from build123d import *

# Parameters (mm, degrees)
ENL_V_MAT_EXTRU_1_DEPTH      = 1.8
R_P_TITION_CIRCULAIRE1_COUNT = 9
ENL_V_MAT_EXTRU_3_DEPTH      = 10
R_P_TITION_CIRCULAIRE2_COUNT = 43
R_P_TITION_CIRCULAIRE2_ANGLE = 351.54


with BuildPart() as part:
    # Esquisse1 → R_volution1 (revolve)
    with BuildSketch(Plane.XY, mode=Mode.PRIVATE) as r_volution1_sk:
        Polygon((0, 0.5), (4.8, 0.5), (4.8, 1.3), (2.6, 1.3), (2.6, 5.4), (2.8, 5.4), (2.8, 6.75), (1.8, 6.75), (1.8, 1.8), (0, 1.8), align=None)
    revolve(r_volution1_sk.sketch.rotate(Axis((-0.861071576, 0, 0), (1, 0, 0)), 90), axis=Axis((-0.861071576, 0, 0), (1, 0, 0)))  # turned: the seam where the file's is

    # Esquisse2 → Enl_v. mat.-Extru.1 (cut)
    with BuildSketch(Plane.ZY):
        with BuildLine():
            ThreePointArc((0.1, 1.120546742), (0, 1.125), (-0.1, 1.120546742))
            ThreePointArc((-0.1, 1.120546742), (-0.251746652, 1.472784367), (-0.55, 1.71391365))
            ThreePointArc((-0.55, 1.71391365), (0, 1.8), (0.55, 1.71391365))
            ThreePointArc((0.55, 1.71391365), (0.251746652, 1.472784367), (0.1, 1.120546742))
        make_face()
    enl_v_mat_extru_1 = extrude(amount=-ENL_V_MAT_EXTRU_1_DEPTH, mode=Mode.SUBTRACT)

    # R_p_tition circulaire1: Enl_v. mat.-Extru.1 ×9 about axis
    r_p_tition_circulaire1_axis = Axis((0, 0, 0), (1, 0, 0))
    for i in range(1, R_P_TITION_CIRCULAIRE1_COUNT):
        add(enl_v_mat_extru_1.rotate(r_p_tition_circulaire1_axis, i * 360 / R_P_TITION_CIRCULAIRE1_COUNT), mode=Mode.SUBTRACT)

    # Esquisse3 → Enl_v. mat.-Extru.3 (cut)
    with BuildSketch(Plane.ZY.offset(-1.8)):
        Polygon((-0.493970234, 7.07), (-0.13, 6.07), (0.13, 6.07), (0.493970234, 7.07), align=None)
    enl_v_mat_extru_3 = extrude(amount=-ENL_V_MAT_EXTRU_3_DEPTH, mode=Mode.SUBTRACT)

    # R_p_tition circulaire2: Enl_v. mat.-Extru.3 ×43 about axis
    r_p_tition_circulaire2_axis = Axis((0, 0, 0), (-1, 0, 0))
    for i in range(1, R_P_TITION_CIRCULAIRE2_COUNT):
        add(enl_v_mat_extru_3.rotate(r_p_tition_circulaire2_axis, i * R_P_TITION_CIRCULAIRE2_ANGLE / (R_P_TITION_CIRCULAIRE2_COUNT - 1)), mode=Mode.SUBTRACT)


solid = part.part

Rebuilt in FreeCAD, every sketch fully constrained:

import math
import FreeCAD as App
import Part
import Sketcher
from FreeCAD import Vector
Q = App.Units.Quantity


def add_polygon(sketch, points):
    """Adds a closed chain of lines whose ends are joined by coincident constraints."""
    first, n = sketch.GeometryCount, len(points)
    for a, b in zip(points, points[1:] + points[:1]):
        sketch.addGeometry(Part.LineSegment(App.Vector(*a, 0), App.Vector(*b, 0)), False)
    for i in range(n):
        sketch.addConstraint(Sketcher.Constraint("Coincident", first + i, 2, first + (i + 1) % n, 1))

doc = App.newDocument("Part")
body = doc.addObject("PartDesign::Body", "Body")

sketch1 = body.newObject("Sketcher::SketchObject", "Sketch")
sketch1.AttachmentSupport = (doc.getObject("XY_Plane"), [""])
sketch1.MapMode = "FlatFace"
add_polygon(sketch1, [(0, 0.5), (4.8, 0.5), (4.8, 1.3), (2.6, 1.3), (2.6, 5.4), (2.8, 5.4), (2.8, 6.75), (1.8, 6.75), (1.8, 1.8), (0, 1.8)])
sketch1.addConstraint([
    Sketcher.Constraint("Horizontal", 0),
    Sketcher.Constraint("Vertical", 1),
    Sketcher.Constraint("Horizontal", 2),
    Sketcher.Constraint("Vertical", 3),
    Sketcher.Constraint("Horizontal", 4),
    Sketcher.Constraint("Vertical", 5),
    Sketcher.Constraint("Horizontal", 6),
    Sketcher.Constraint("Vertical", 7),
    Sketcher.Constraint("Horizontal", 8),
    Sketcher.Constraint("Vertical", 9),
    Sketcher.Constraint("PointOnObject", 8, 2, -2),
    Sketcher.Constraint("DistanceX", 6, 2, 6, 1, 1.0),
    Sketcher.Constraint("DistanceX", 0, 1, 0, 2, 4.8),
    Sketcher.Constraint("DistanceX", 2, 2, 2, 1, 2.2),
    Sketcher.Constraint("DistanceX", 4, 1, 4, 2, 0.2),
    Sketcher.Constraint("DistanceY", 1, 1, 1, 2, 0.8),
    Sketcher.Constraint("DistanceY", 3, 1, 3, 2, 4.1),
    Sketcher.Constraint("DistanceY", 9, 2, 9, 1, 1.3),
    Sketcher.Constraint("DistanceY", 5, 1, 5, 2, 1.35),
    Sketcher.Constraint("DistanceY", -1, 1, 0, 2, 0.5),
])
revolution = body.newObject("PartDesign::Revolution", "Revolution")
revolution.Profile = sketch1
revolution.ReferenceAxis = (sketch1, ["H_Axis"])
revolution.Angle = 360

sketch2 = body.newObject("Sketcher::SketchObject", "Sketch001")
sketch2.AttachmentSupport = (doc.getObject("YZ_Plane"), [""])
sketch2.MapMode = "FlatFace"
sketch2.addGeometry([
    Part.ArcOfCircle(Part.Circle(Vector(0, 0, 0), Vector(0, 0, 1), 1.125), math.radians(-5.099688), math.radians(5.099688)),
    Part.ArcOfCircle(Part.Circle(Vector(0.989371, 0.889172, 0), Vector(0, 0, 1), 0.8), math.radians(-80.562608), math.radians(-25.085192)),
    Part.ArcOfCircle(Part.Circle(Vector(0, 0, 0), Vector(0, 0, 1), 1.8), math.radians(-17.791591), math.radians(17.791591)),
    Part.ArcOfCircle(Part.Circle(Vector(0.989371, -0.889172, 0), Vector(0, 0, 1), 0.8), math.radians(25.085192), math.radians(80.562608)),
], False)
sketch2.addConstraint([
    Sketcher.Constraint("Coincident", 0, 2, 1, 1),
    Sketcher.Constraint("Coincident", 1, 2, 2, 2),
    Sketcher.Constraint("Coincident", 2, 1, 3, 1),
    Sketcher.Constraint("Coincident", 3, 2, 0, 1),
    Sketcher.Constraint("Coincident", 0, 3, -1, 1),
    Sketcher.Constraint("Coincident", 2, 3, -1, 1),
    Sketcher.Constraint("Equal", 1, 3),
    Sketcher.Constraint("Symmetric", 1, 3, 3, 3, -1),
    Sketcher.Constraint("Radius", 1, 0.8),
    Sketcher.Constraint("Radius", 2, 1.8),
    Sketcher.Constraint("Radius", 0, 1.125),
    Sketcher.Constraint("DistanceY", -1, 1, 0, 2, 0.1),
    Sketcher.Constraint("DistanceY", 2, 1, 1, 2, 1.1),
])
pocket1 = body.newObject("PartDesign::Pocket", "Pocket")
pocket1.Profile = sketch2
pocket1.Length = 1.8
pocket1.Reversed = True
doc.recompute()

polarpattern = body.newObject("PartDesign::PolarPattern", "PolarPattern")
polarpattern.Originals = [pocket1]
polarpattern.Axis = (doc.getObject("X_Axis"), [""])
polarpattern.Angle = 360
polarpattern.Occurrences = 9
body.Tip = polarpattern

sketch3 = body.newObject("Sketcher::SketchObject", "Sketch002")
sketch3.AttachmentSupport = (doc.getObject("YZ_Plane"), [""])
sketch3.MapMode = "FlatFace"
sketch3.AttachmentOffset = App.Placement(Vector(0, 0, 1.8), App.Rotation())
add_polygon(sketch3, [(7.07, -0.49397), (6.07, -0.13), (6.07, 0.13), (7.07, 0.49397)])
sketch3.addConstraint([
    Sketcher.Constraint("Vertical", 1),
    Sketcher.Constraint("Vertical", 3),
    Sketcher.Constraint("Equal", 0, 2),
    Sketcher.Constraint("Angle", 0, Q("160 deg")),
    Sketcher.Constraint("DistanceX", 1, 2, 2, 2, 1.0),
    Sketcher.Constraint("DistanceY", 1, 1, 1, 2, 0.26),
    Sketcher.Constraint("DistanceX", -1, 1, 0, 2, 6.07),
    Sketcher.Constraint("DistanceY", 0, 2, -1, 1, 0.13),
])
pocket2 = body.newObject("PartDesign::Pocket", "Pocket001")
pocket2.Profile = sketch3
pocket2.Length = 10
pocket2.Reversed = True
doc.recompute()

polarpattern2 = body.newObject("PartDesign::PolarPattern", "PolarPattern001")
polarpattern2.Originals = [pocket2]
polarpattern2.Axis = (doc.getObject("X_Axis"), [""])
polarpattern2.Angle = 351.54
polarpattern2.Occurrences = 43
polarpattern2.Reversed = True
body.Tip = polarpattern2

doc.recompute()
